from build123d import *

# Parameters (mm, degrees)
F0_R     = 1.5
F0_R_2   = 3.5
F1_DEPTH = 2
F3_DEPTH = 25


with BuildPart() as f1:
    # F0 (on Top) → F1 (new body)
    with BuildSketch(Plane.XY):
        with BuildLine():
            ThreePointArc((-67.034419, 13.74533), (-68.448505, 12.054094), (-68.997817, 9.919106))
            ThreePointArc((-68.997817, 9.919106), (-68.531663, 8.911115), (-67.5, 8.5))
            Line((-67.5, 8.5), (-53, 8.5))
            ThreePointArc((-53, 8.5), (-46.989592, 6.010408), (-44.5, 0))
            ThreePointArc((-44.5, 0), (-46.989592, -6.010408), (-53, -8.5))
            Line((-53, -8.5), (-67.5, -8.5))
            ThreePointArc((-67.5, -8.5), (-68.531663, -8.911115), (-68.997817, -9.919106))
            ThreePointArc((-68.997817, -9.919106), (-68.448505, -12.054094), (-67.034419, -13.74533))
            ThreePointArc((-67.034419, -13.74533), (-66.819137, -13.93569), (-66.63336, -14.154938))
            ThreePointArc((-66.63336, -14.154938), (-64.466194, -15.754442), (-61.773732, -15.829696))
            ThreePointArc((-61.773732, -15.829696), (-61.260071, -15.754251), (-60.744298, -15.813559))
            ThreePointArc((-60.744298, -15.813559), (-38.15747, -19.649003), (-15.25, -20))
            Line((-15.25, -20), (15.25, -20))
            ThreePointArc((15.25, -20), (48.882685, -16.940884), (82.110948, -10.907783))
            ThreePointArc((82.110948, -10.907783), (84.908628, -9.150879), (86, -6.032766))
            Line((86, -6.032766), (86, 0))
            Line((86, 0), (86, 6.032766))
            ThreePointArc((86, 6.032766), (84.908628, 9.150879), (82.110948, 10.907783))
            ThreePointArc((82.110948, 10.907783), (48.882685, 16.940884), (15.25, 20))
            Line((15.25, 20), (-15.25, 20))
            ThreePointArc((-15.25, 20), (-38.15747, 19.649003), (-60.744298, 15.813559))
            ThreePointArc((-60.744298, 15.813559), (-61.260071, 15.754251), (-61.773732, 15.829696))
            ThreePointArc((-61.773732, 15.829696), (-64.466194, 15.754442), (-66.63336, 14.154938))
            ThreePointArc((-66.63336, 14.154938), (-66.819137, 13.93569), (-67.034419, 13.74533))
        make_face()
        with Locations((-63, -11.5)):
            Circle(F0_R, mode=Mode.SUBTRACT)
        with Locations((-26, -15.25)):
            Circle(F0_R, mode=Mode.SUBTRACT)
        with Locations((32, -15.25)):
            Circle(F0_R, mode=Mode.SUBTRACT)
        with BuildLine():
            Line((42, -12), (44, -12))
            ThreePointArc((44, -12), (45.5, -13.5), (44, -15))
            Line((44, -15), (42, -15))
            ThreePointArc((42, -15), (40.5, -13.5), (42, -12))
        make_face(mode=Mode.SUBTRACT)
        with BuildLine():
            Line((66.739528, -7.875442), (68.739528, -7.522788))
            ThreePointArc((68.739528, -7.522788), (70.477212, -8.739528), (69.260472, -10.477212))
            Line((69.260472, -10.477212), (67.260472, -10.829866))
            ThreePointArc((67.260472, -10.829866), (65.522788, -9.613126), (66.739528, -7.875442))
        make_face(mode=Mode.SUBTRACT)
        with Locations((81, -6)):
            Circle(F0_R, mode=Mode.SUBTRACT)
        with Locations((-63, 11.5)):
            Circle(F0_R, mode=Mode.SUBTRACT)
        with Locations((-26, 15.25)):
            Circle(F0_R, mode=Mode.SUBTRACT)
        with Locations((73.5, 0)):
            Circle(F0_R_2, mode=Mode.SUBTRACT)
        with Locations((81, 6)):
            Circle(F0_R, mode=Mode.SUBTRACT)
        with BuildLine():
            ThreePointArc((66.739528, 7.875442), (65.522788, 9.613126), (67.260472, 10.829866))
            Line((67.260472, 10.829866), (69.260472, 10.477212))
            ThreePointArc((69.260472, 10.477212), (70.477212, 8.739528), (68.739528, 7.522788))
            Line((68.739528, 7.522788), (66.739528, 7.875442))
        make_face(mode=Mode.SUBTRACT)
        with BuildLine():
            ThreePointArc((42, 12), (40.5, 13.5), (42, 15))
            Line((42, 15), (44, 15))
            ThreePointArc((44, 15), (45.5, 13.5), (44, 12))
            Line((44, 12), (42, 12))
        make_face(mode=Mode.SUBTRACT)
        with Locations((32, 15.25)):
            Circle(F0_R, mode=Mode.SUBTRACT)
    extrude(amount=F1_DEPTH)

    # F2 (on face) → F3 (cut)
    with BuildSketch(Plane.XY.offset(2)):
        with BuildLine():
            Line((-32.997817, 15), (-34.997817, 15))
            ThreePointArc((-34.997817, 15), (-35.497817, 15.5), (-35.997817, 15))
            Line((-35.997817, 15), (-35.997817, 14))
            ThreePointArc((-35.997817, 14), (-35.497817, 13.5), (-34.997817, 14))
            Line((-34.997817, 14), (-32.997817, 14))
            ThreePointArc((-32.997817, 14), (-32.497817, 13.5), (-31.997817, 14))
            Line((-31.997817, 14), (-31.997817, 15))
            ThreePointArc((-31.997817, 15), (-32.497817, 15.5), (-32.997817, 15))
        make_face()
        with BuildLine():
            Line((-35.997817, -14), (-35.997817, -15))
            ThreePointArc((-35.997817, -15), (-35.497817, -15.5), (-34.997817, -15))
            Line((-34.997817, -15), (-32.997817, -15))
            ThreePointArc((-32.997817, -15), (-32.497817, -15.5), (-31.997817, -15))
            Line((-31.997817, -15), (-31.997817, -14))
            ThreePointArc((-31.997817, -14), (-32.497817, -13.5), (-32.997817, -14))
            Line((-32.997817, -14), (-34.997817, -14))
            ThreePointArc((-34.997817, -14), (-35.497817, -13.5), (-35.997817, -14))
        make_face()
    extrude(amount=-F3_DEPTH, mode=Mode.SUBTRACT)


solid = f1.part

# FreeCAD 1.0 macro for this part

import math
import FreeCAD as App
import Part
import Sketcher

V = App.Vector
Q = App.Units.Quantity

doc = App.newDocument("Part")
params = doc.addObject("Spreadsheet::Sheet", "Params")
for row, (alias, value) in enumerate([
    ("sketch1_diameter", "3 mm"),
    ("sketch1_diameter2", "7 mm"),
    ("sketch1_radius", "4.999999 mm"),
    ("sketch1_radius2", "8.499999 mm"),
    ("sketch1_radius3", "4.5 mm"),
    ("pad1_length", "2 mm"),
    ("sketch2_radius", "0.5 mm"),
    ("sketch2_width", "2 mm"),
    ("sketch2_height", "1 mm"),
    ("pocket1_length", "25 mm"),
], start=1):
    params.set(f"A{row}", alias)
    params.set(f"B{row}", "=" + value)
    params.setAlias(f"B{row}", alias)

body = doc.addObject("PartDesign::Body", "Body")

# Sketch on XY plane
sketch1 = body.newObject("Sketcher::SketchObject", "Sketch")
sketch1.AttachmentSupport = (doc.getObject("XY_Plane"), [""])
sketch1.MapMode = "FlatFace"
sketch1.addGeometry(Part.ArcOfCircle(Part.Circle(V(-64, 9.8, 0), V(0, 0, 1), 5), math.radians(127), math.radians(178)), False)
sketch1.addGeometry(Part.ArcOfCircle(Part.Circle(V(-67.5, 10, 0), V(0, 0, 1), 1.5), math.radians(-177), math.radians(-90)), False)
sketch1.addGeometry(Part.LineSegment(V(-67.5, 8.5, 0), V(-53, 8.5, 0)), False)
sketch1.addGeometry(Part.ArcOfCircle(Part.Circle(V(-53, 0, 0), V(0, 0, 1), 8.5), math.radians(0), math.radians(90)), False)
sketch1.addGeometry(Part.ArcOfCircle(Part.Circle(V(-53, 0, 0), V(0, 0, 1), 8.5), math.radians(-90), math.radians(0)), False)
sketch1.addGeometry(Part.LineSegment(V(-53, -8.5, 0), V(-67.5, -8.5, 0)), False)
sketch1.addGeometry(Part.ArcOfCircle(Part.Circle(V(-67.5, -10, 0), V(0, 0, 1), 1.5), math.radians(90), math.radians(177)), False)
sketch1.addGeometry(Part.ArcOfCircle(Part.Circle(V(-64, -9.8, 0), V(0, 0, 1), 5), math.radians(-178), math.radians(-127)), False)
sketch1.addGeometry(Part.ArcOfCircle(Part.Circle(V(-68.2, -15.3, 0), V(0, 0, 1), 2), math.radians(36.16), math.radians(52.64)), False)
sketch1.addGeometry(Part.ArcOfCircle(Part.Circle(V(-63, -11.5, 0), V(0, 0, 1), 4.5), math.radians(-144), math.radians(-74)), False)
sketch1.addGeometry(Part.ArcOfCircle(Part.Circle(V(-61.2, -17.8, 0), V(0, 0, 1), 2), math.radians(76), math.radians(106)), False)
sketch1.addGeometry(Part.ArcOfCircle(Part.Circle(V(-24.4, 129.7, 0), V(0, 0, 1), 150), math.radians(-104.02), math.radians(-86.5)), False)
sketch1.addGeometry(Part.LineSegment(V(-15.2, -20, 0), V(15.2, -20, 0)), False)
sketch1.addGeometry(Part.ArcOfCircle(Part.Circle(V(-2.3, 359.6, 0), V(0, 0, 1), 380), math.radians(-87.35), math.radians(-77.16)), False)
sketch1.addGeometry(Part.ArcOfCircle(Part.Circle(V(81, -6, 0), V(0, 0, 1), 5), math.radians(-77), math.radians(0)), False)
sketch1.addGeometry(Part.LineSegment(V(86, -6, 0), V(86, 6, 0)), False)
sketch1.addGeometry(Part.ArcOfCircle(Part.Circle(V(81, 6, 0), V(0, 0, 1), 5), math.radians(0), math.radians(77)), False)
sketch1.addGeometry(Part.ArcOfCircle(Part.Circle(V(-2.3, -359.6, 0), V(0, 0, 1), 380), math.radians(77.16), math.radians(87.35)), False)
sketch1.addGeometry(Part.LineSegment(V(15.2, 20, 0), V(-15.2, 20, 0)), False)
sketch1.addGeometry(Part.ArcOfCircle(Part.Circle(V(-24.4, -129.7, 0), V(0, 0, 1), 150), math.radians(86.5), math.radians(104.02)), False)
sketch1.addGeometry(Part.ArcOfCircle(Part.Circle(V(-61.2, 17.8, 0), V(0, 0, 1), 2), math.radians(-106), math.radians(-76)), False)
sketch1.addGeometry(Part.ArcOfCircle(Part.Circle(V(-63, 11.5, 0), V(0, 0, 1), 4.5), math.radians(74), math.radians(144)), False)
sketch1.addGeometry(Part.ArcOfCircle(Part.Circle(V(-68.2, 15.3, 0), V(0, 0, 1), 2), math.radians(-52.64), math.radians(-36.16)), False)
sketch1.addGeometry(Part.Circle(V(-63, -11.5, 0), V(0, 0, 1), 1.5), False)
sketch1.addGeometry(Part.Circle(V(-26, -15.2, 0), V(0, 0, 1), 1.5), False)
sketch1.addGeometry(Part.Circle(V(32, -15.2, 0), V(0, 0, 1), 1.5), False)
sketch1.addGeometry(Part.ArcOfCircle(Part.Circle(V(42, -13.5, 0), V(0, 0, 1), 1.5), math.radians(90), math.radians(270)), False)
sketch1.addGeometry(Part.LineSegment(V(42, -12, 0), V(44, -12, 0)), False)
sketch1.addGeometry(Part.ArcOfCircle(Part.Circle(V(44, -13.5, 0), V(0, 0, 1), 1.5), math.radians(-90), math.radians(90)), False)
sketch1.addGeometry(Part.LineSegment(V(44, -15, 0), V(42, -15, 0)), False)
sketch1.addGeometry(Part.ArcOfCircle(Part.Circle(V(67, -9.4, 0), V(0, 0, 1), 1.5), math.radians(100), math.radians(280)), False)
sketch1.addGeometry(Part.LineSegment(V(66.7, -7.9, 0), V(68.7, -7.5, 0)), False)
sketch1.addGeometry(Part.ArcOfCircle(Part.Circle(V(69, -9, 0), V(0, 0, 1), 1.5), math.radians(-80), math.radians(100)), False)
sketch1.addGeometry(Part.LineSegment(V(69.3, -10.5, 0), V(67.3, -10.8, 0)), False)
sketch1.addGeometry(Part.Circle(V(81, -6, 0), V(0, 0, 1), 1.5), False)
sketch1.addGeometry(Part.Circle(V(-63, 11.5, 0), V(0, 0, 1), 1.5), False)
sketch1.addGeometry(Part.Circle(V(-26, 15.2, 0), V(0, 0, 1), 1.5), False)
sketch1.addGeometry(Part.Circle(V(73.5, 0, 0), V(0, 0, 1), 3.5), False)
sketch1.addGeometry(Part.Circle(V(81, 6, 0), V(0, 0, 1), 1.5), False)
sketch1.addGeometry(Part.LineSegment(V(44, 12, 0), V(42, 12, 0)), False)
sketch1.addGeometry(Part.ArcOfCircle(Part.Circle(V(42, 13.5, 0), V(0, 0, 1), 1.5), math.radians(90), math.radians(270)), False)
sketch1.addGeometry(Part.LineSegment(V(42, 15, 0), V(44, 15, 0)), False)
sketch1.addGeometry(Part.ArcOfCircle(Part.Circle(V(44, 13.5, 0), V(0, 0, 1), 1.5), math.radians(-90), math.radians(90)), False)
sketch1.addGeometry(Part.Circle(V(32, 15.2, 0), V(0, 0, 1), 1.5), False)
sketch1.addGeometry(Part.LineSegment(V(68.7, 7.5, 0), V(66.7, 7.9, 0)), False)
sketch1.addGeometry(Part.ArcOfCircle(Part.Circle(V(67, 9.4, 0), V(0, 0, 1), 1.5), math.radians(80), math.radians(260)), False)
sketch1.addGeometry(Part.LineSegment(V(67.3, 10.8, 0), V(69.3, 10.5, 0)), False)
sketch1.addGeometry(Part.ArcOfCircle(Part.Circle(V(69, 9, 0), V(0, 0, 1), 1.5), math.radians(-100), math.radians(80)), False)
sketch1.addConstraint(Sketcher.Constraint("Coincident", 0, 2, 1, 1))
sketch1.addConstraint(Sketcher.Constraint("Tangent", 1, 2, 2, 1))
sketch1.addConstraint(Sketcher.Constraint("Tangent", 2, 2, 3, 2))
sketch1.addConstraint(Sketcher.Constraint("Tangent", 3, 1, 4, 2))
sketch1.addConstraint(Sketcher.Constraint("Tangent", 4, 1, 5, 1))
sketch1.addConstraint(Sketcher.Constraint("Tangent", 5, 2, 6, 1))
sketch1.addConstraint(Sketcher.Constraint("Coincident", 6, 2, 7, 1))
sketch1.addConstraint(Sketcher.Constraint("Coincident", 7, 2, 8, 2))
sketch1.addConstraint(Sketcher.Constraint("Coincident", 8, 1, 9, 1))
sketch1.addConstraint(Sketcher.Constraint("Tangent", 9, 2, 10, 2))
sketch1.addConstraint(Sketcher.Constraint("Tangent", 10, 1, 11, 1))
sketch1.addConstraint(Sketcher.Constraint("Coincident", 11, 2, 12, 1))
sketch1.addConstraint(Sketcher.Constraint("Coincident", 12, 2, 13, 1))
sketch1.addConstraint(Sketcher.Constraint("Tangent", 13, 2, 14, 1))
sketch1.addConstraint(Sketcher.Constraint("Tangent", 14, 2, 15, 1))
sketch1.addConstraint(Sketcher.Constraint("Tangent", 15, 2, 16, 1))
sketch1.addConstraint(Sketcher.Constraint("Tangent", 16, 2, 17, 1))
sketch1.addConstraint(Sketcher.Constraint("Coincident", 17, 2, 18, 1))
sketch1.addConstraint(Sketcher.Constraint("Coincident", 18, 2, 19, 1))
sketch1.addConstraint(Sketcher.Constraint("Tangent", 19, 2, 20, 2))
sketch1.addConstraint(Sketcher.Constraint("Tangent", 20, 1, 21, 1))
sketch1.addConstraint(Sketcher.Constraint("Coincident", 21, 2, 22, 2))
sketch1.addConstraint(Sketcher.Constraint("Coincident", 22, 1, 0, 1))
sketch1.addConstraint(Sketcher.Constraint("Tangent", 26, 1, 27, 1))
sketch1.addConstraint(Sketcher.Constraint("Tangent", 27, 2, 28, 2))
sketch1.addConstraint(Sketcher.Constraint("Tangent", 28, 1, 29, 1))
sketch1.addConstraint(Sketcher.Constraint("Tangent", 29, 2, 26, 2))
sketch1.addConstraint(Sketcher.Constraint("Tangent", 30, 1, 31, 1))
sketch1.addConstraint(Sketcher.Constraint("Tangent", 31, 2, 32, 2))
sketch1.addConstraint(Sketcher.Constraint("Tangent", 32, 1, 33, 1))
sketch1.addConstraint(Sketcher.Constraint("Tangent", 33, 2, 30, 2))
sketch1.addConstraint(Sketcher.Constraint("Tangent", 39, 2, 40, 2))
sketch1.addConstraint(Sketcher.Constraint("Tangent", 40, 1, 41, 1))
sketch1.addConstraint(Sketcher.Constraint("Tangent", 41, 2, 42, 2))
sketch1.addConstraint(Sketcher.Constraint("Tangent", 42, 1, 39, 1))
sketch1.addConstraint(Sketcher.Constraint("Tangent", 44, 2, 45, 2))
sketch1.addConstraint(Sketcher.Constraint("Tangent", 45, 1, 46, 1))
sketch1.addConstraint(Sketcher.Constraint("Tangent", 46, 2, 47, 2))
sketch1.addConstraint(Sketcher.Constraint("Tangent", 47, 1, 44, 1))
sketch1.addConstraint(Sketcher.Constraint("Horizontal", 2))
sketch1.addConstraint(Sketcher.Constraint("Horizontal", 5))
sketch1.addConstraint(Sketcher.Constraint("Horizontal", 12))
sketch1.addConstraint(Sketcher.Constraint("Vertical", 15))
sketch1.addConstraint(Sketcher.Constraint("Horizontal", 18))
sketch1.addConstraint(Sketcher.Constraint("Horizontal", 27))
sketch1.addConstraint(Sketcher.Constraint("Horizontal", 29))
sketch1.addConstraint(Sketcher.Constraint("Horizontal", 39))
sketch1.addConstraint(Sketcher.Constraint("Horizontal", 41))
sketch1.addConstraint(Sketcher.Constraint("Coincident", 23, 3, 9, 3))
sketch1.addConstraint(Sketcher.Constraint("Coincident", 35, 3, 21, 3))
sketch1.addConstraint(Sketcher.Constraint("Equal", 3, 4))
sketch1.addConstraint(Sketcher.Constraint("Equal", 1, 6))
sketch1.addConstraint(Sketcher.Constraint("Equal", 0, 7))
sketch1.addConstraint(Sketcher.Constraint("Equal", 14, 16))
sketch1.addConstraint(Sketcher.Constraint("Equal", 13, 17))
sketch1.addConstraint(Sketcher.Constraint("Equal", 11, 19))
sketch1.addConstraint(Sketcher.Constraint("Equal", 10, 20))
sketch1.addConstraint(Sketcher.Constraint("Equal", 9, 21))
sketch1.addConstraint(Sketcher.Constraint("Equal", 8, 22))
sketch1.addConstraint(Sketcher.Constraint("Equal", 6, 23))
sketch1.addConstraint(Sketcher.Constraint("Equal", 23, 24))
sketch1.addConstraint(Sketcher.Constraint("Equal", 24, 25))
sketch1.addConstraint(Sketcher.Constraint("Equal", 25, 26))
sketch1.addConstraint(Sketcher.Constraint("Equal", 28, 30))
sketch1.addConstraint(Sketcher.Constraint("Equal", 30, 32))
sketch1.addConstraint(Sketcher.Constraint("Equal", 32, 34))
sketch1.addConstraint(Sketcher.Constraint("Equal", 34, 35))
sketch1.addConstraint(Sketcher.Constraint("Equal", 35, 36))
sketch1.addConstraint(Sketcher.Constraint("Equal", 36, 38))
sketch1.addConstraint(Sketcher.Constraint("Equal", 38, 40))
sketch1.addConstraint(Sketcher.Constraint("Equal", 42, 43))
sketch1.addConstraint(Sketcher.Constraint("Equal", 43, 45))
sketch1.addConstraint(Sketcher.Constraint("Equal", 45, 47))
sketch1.addConstraint(Sketcher.Constraint("Symmetric", 11, 2, 17, 2, -1, 1))
sketch1.addConstraint(Sketcher.Constraint("Symmetric", 1, 3, 6, 3, -1))
sketch1.addConstraint(Sketcher.Constraint("Symmetric", 0, 3, 7, 3, -1))
sketch1.addConstraint(Sketcher.Constraint("Symmetric", 13, 3, 17, 3, -1))
sketch1.addConstraint(Sketcher.Constraint("Symmetric", 11, 3, 19, 3, -1))
sketch1.addConstraint(Sketcher.Constraint("Symmetric", 9, 3, 21, 3, -1))
sketch1.addConstraint(Sketcher.Constraint("Symmetric", 24, 3, 36, 3, -1))
sketch1.addConstraint(Sketcher.Constraint("Symmetric", 34, 3, 38, 3, -1))
sketch1.addConstraint(Sketcher.Constraint("Symmetric", 26, 3, 40, 3, -1))
sketch1.addConstraint(Sketcher.Constraint("Symmetric", 25, 3, 43, 3, -1))
sketch1.addConstraint(Sketcher.Constraint("Symmetric", 30, 3, 45, 3, -1))
sketch1.addConstraint(Sketcher.Constraint("Symmetric", 32, 3, 47, 3, -1))
sketch1.addConstraint(Sketcher.Constraint("PointOnObject", 37, 3, -1))
sketch1.addConstraint(Sketcher.Constraint("PointOnObject", 3, 1, -1))
sketch1.addConstraint(Sketcher.Constraint("Horizontal", 24, 3, 25, 3))
sketch1.addConstraint(Sketcher.Constraint("Vertical", 16, 3, 34, 3))
sketch1.addConstraint(Sketcher.Constraint("Vertical", 28, 3, 42, 3))
sketch1.addConstraint(Sketcher.Constraint("Vertical", 8, 1, 21, 2))
sketch1.addConstraint(Sketcher.Constraint("Vertical", 7, 2, 22, 1))
sketch1.addConstraint(Sketcher.Constraint("Diameter", 23, 3.0))
sketch1.addConstraint(Sketcher.Constraint("Diameter", 37, 7.0))
sketch1.addConstraint(Sketcher.Constraint("Radius", 14, 4.999999))
sketch1.addConstraint(Sketcher.Constraint("Radius", 3, 8.499999))
sketch1.addConstraint(Sketcher.Constraint("Radius", 9, 4.5))
sketch1.addConstraint(Sketcher.Constraint("DistanceX", 27, 1, 27, 2, 2.0))
sketch1.addConstraint(Sketcher.Constraint("Angle", 31, Q("10.000001 deg")))
sketch1.addConstraint(Sketcher.Constraint("DistanceX", 2, 1, 2, 2, 14.5))
sketch1.addConstraint(Sketcher.Constraint("DistanceX", 12, 1, 12, 2, 30.5))
sketch1.addConstraint(Sketcher.Constraint("DistanceX", 3, 3, -1, 1, 52.999999))
sketch1.addConstraint(Sketcher.Constraint("DistanceX", 9, 3, -1, 1, 63.0))
sketch1.addConstraint(Sketcher.Constraint("DistanceX", -1, 1, 14, 3, 81.000001))
sketch1.addConstraint(Sketcher.Constraint("DistanceX", 24, 3, -1, 1, 26.0))
sketch1.addConstraint(Sketcher.Constraint("DistanceX", -1, 1, 25, 3, 32.0))
sketch1.addConstraint(Sketcher.Constraint("DistanceX", -1, 1, 26, 3, 42.0))
sketch1.addConstraint(Sketcher.Constraint("DistanceX", -1, 1, 30, 3, 67.0))
sketch1.addConstraint(Sketcher.Constraint("DistanceX", -1, 1, 32, 3, 69.0))
sketch1.addConstraint(Sketcher.Constraint("DistanceY", 32, 3, -1, 1, 9.0))
sketch1.addConstraint(Sketcher.Constraint("DistanceY", 34, 3, -1, 1, 6.0))
sketch1.addConstraint(Sketcher.Constraint("DistanceY", 11, 2, -1, 1, 20.0))
sketch1.addConstraint(Sketcher.Constraint("DistanceY", 26, 1, -1, 1, 12.0))
sketch1.addConstraint(Sketcher.Constraint("DistanceY", 9, 3, -1, 1, 11.500001))
sketch1.addConstraint(Sketcher.Constraint("DistanceX", -1, 1, 37, 3, 73.5))
sketch1.addConstraint(Sketcher.Constraint("DistanceY", 24, 3, -1, 1, 15.25))
sketch1.addConstraint(Sketcher.Constraint("Radius", 13, 380.000021))
sketch1.addConstraint(Sketcher.Constraint("Radius", 0, 5.000006))
sketch1.addConstraint(Sketcher.Constraint("Radius", 8, 1.999957))
sketch1.addConstraint(Sketcher.Constraint("Radius", 10, 2.000002))
sketch1.addConstraint(Sketcher.Constraint("Radius", 11, 150.000025))
sketch1.addConstraint(Sketcher.Constraint("DistanceY", 15, 1, 15, 2, 12.065532))
sketch1.addConstraint(Sketcher.Constraint("DistanceX", 19, 2, -1, 1, 60.744298))
sketch1.addConstraint(Sketcher.Constraint("DistanceY", 8, 3, -1, 1, 15.334882))
sketch1.addConstraint(Sketcher.Constraint("DistanceX", 7, 2, -1, 1, 67.034419))
sketch1.addConstraint(Sketcher.Constraint("DistanceX", 8, 1, -1, 1, 66.63336))
sketch1.addConstraint(Sketcher.Constraint("DistanceX", 0, 3, -1, 1, 63.999994))
sketch1.setExpression("Constraints[92]", "Params.sketch1_diameter")
sketch1.setExpression("Constraints[93]", "Params.sketch1_diameter2")
sketch1.setExpression("Constraints[94]", "Params.sketch1_radius")
sketch1.setExpression("Constraints[95]", "Params.sketch1_radius2")
sketch1.setExpression("Constraints[96]", "Params.sketch1_radius3")
pad1 = body.newObject("PartDesign::Pad", "Pad")
pad1.Profile = sketch1
pad1.setExpression("Length", "Params.pad1_length")

# Sketch on XY plane
sketch2 = body.newObject("Sketcher::SketchObject", "Sketch001")
sketch2.AttachmentSupport = (doc.getObject("XY_Plane"), [""])
sketch2.MapMode = "FlatFace"
sketch2.AttachmentOffset = App.Placement(V(0, 0, 2), App.Rotation())
sketch2.addGeometry(Part.LineSegment(V(-33, 15, 0), V(-35, 15, 0)), False)
sketch2.addGeometry(Part.ArcOfCircle(Part.Circle(V(-35.5, 15, 0), V(0, 0, 1), 0.5), math.radians(0), math.radians(180)), False)
sketch2.addGeometry(Part.LineSegment(V(-36, 15, 0), V(-36, 14, 0)), False)
sketch2.addGeometry(Part.ArcOfCircle(Part.Circle(V(-35.5, 14, 0), V(0, 0, 1), 0.5), math.radians(180), math.radians(360)), False)
sketch2.addGeometry(Part.LineSegment(V(-35, 14, 0), V(-33, 14, 0)), False)
sketch2.addGeometry(Part.ArcOfCircle(Part.Circle(V(-32.5, 14, 0), V(0, 0, 1), 0.5), math.radians(180), math.radians(360)), False)
sketch2.addGeometry(Part.LineSegment(V(-32, 14, 0), V(-32, 15, 0)), False)
sketch2.addGeometry(Part.ArcOfCircle(Part.Circle(V(-32.5, 15, 0), V(0, 0, 1), 0.5), math.radians(0), math.radians(180)), False)
sketch2.addGeometry(Part.LineSegment(V(-36, -14, 0), V(-36, -15, 0)), False)
sketch2.addGeometry(Part.ArcOfCircle(Part.Circle(V(-35.5, -15, 0), V(0, 0, 1), 0.5), math.radians(180), math.radians(360)), False)
sketch2.addGeometry(Part.LineSegment(V(-35, -15, 0), V(-33, -15, 0)), False)
sketch2.addGeometry(Part.ArcOfCircle(Part.Circle(V(-32.5, -15, 0), V(0, 0, 1), 0.5), math.radians(180), math.radians(360)), False)
sketch2.addGeometry(Part.LineSegment(V(-32, -15, 0), V(-32, -14, 0)), False)
sketch2.addGeometry(Part.ArcOfCircle(Part.Circle(V(-32.5, -14, 0), V(0, 0, 1), 0.5), math.radians(0), math.radians(180)), False)
sketch2.addGeometry(Part.LineSegment(V(-33, -14, 0), V(-35, -14, 0)), False)
sketch2.addGeometry(Part.ArcOfCircle(Part.Circle(V(-35.5, -14, 0), V(0, 0, 1), 0.5), math.radians(0), math.radians(180)), False)
sketch2.addConstraint(Sketcher.Constraint("Coincident", 0, 2, 1, 1))
sketch2.addConstraint(Sketcher.Constraint("Tangent", 1, 2, 2, 1))
sketch2.addConstraint(Sketcher.Constraint("Tangent", 2, 2, 3, 1))
sketch2.addConstraint(Sketcher.Constraint("Coincident", 3, 2, 4, 1))
sketch2.addConstraint(Sketcher.Constraint("Coincident", 4, 2, 5, 1))
sketch2.addConstraint(Sketcher.Constraint("Tangent", 5, 2, 6, 1))
sketch2.addConstraint(Sketcher.Constraint("Tangent", 6, 2, 7, 1))
sketch2.addConstraint(Sketcher.Constraint("Coincident", 7, 2, 0, 1))
sketch2.addConstraint(Sketcher.Constraint("Tangent", 8, 2, 9, 1))
sketch2.addConstraint(Sketcher.Constraint("Coincident", 9, 2, 10, 1))
sketch2.addConstraint(Sketcher.Constraint("Coincident", 10, 2, 11, 1))
sketch2.addConstraint(Sketcher.Constraint("Tangent", 11, 2, 12, 1))
sketch2.addConstraint(Sketcher.Constraint("Tangent", 12, 2, 13, 1))
sketch2.addConstraint(Sketcher.Constraint("Coincident", 13, 2, 14, 1))
sketch2.addConstraint(Sketcher.Constraint("Coincident", 14, 2, 15, 1))
sketch2.addConstraint(Sketcher.Constraint("Tangent", 15, 2, 8, 1))
sketch2.addConstraint(Sketcher.Constraint("Horizontal", 0))
sketch2.addConstraint(Sketcher.Constraint("Vertical", 2))
sketch2.addConstraint(Sketcher.Constraint("Horizontal", 4))
sketch2.addConstraint(Sketcher.Constraint("Vertical", 6))
sketch2.addConstraint(Sketcher.Constraint("Vertical", 8))
sketch2.addConstraint(Sketcher.Constraint("Horizontal", 10))
sketch2.addConstraint(Sketcher.Constraint("Vertical", 12))
sketch2.addConstraint(Sketcher.Constraint("Horizontal", 14))
sketch2.addConstraint(Sketcher.Constraint("Equal", 1, 3))
sketch2.addConstraint(Sketcher.Constraint("Equal", 3, 5))
sketch2.addConstraint(Sketcher.Constraint("Equal", 5, 7))
sketch2.addConstraint(Sketcher.Constraint("Equal", 7, 9))
sketch2.addConstraint(Sketcher.Constraint("Equal", 9, 11))
sketch2.addConstraint(Sketcher.Constraint("Equal", 11, 13))
sketch2.addConstraint(Sketcher.Constraint("Equal", 13, 15))
sketch2.addConstraint(Sketcher.Constraint("Symmetric", 1, 3, 9, 3, -1))
sketch2.addConstraint(Sketcher.Constraint("Symmetric", 7, 3, 11, 3, -1))
sketch2.addConstraint(Sketcher.Constraint("Horizontal", 3, 3, 5, 3))
sketch2.addConstraint(Sketcher.Constraint("Horizontal", 1, 3, 7, 3))
sketch2.addConstraint(Sketcher.Constraint("Horizontal", 13, 3, 15, 3))
sketch2.addConstraint(Sketcher.Constraint("Horizontal", 7, 3, 0, 2))
sketch2.addConstraint(Sketcher.Constraint("Horizontal", 2, 2, 3, 2))
sketch2.addConstraint(Sketcher.Constraint("Horizontal", 8, 2, 9, 2))
sketch2.addConstraint(Sketcher.Constraint("Horizontal", 12, 2, 13, 2))
sketch2.addConstraint(Sketcher.Constraint("Equal", 6, 8))
sketch2.addConstraint(Sketcher.Constraint("Radius", 1, 0.5))
sketch2.addConstraint(Sketcher.Constraint("DistanceX", 0, 2, 0, 1, 2.0))
sketch2.addConstraint(Sketcher.Constraint("DistanceY", 2, 2, 2, 1, 1.0))
sketch2.addConstraint(Sketcher.Constraint("DistanceY", -1, 1, 1, 3, 15.0))
sketch2.addConstraint(Sketcher.Constraint("DistanceX", 1, 3, -1, 1, 35.497817))
sketch2.setExpression("Constraints[41]", "Params.sketch2_radius")
sketch2.setExpression("Constraints[42]", "Params.sketch2_width")
sketch2.setExpression("Constraints[43]", "Params.sketch2_height")
pocket1 = body.newObject("PartDesign::Pocket", "Pocket")
pocket1.Profile = sketch2
pocket1.setExpression("Length", "Params.pocket1_length")

doc.recompute()
